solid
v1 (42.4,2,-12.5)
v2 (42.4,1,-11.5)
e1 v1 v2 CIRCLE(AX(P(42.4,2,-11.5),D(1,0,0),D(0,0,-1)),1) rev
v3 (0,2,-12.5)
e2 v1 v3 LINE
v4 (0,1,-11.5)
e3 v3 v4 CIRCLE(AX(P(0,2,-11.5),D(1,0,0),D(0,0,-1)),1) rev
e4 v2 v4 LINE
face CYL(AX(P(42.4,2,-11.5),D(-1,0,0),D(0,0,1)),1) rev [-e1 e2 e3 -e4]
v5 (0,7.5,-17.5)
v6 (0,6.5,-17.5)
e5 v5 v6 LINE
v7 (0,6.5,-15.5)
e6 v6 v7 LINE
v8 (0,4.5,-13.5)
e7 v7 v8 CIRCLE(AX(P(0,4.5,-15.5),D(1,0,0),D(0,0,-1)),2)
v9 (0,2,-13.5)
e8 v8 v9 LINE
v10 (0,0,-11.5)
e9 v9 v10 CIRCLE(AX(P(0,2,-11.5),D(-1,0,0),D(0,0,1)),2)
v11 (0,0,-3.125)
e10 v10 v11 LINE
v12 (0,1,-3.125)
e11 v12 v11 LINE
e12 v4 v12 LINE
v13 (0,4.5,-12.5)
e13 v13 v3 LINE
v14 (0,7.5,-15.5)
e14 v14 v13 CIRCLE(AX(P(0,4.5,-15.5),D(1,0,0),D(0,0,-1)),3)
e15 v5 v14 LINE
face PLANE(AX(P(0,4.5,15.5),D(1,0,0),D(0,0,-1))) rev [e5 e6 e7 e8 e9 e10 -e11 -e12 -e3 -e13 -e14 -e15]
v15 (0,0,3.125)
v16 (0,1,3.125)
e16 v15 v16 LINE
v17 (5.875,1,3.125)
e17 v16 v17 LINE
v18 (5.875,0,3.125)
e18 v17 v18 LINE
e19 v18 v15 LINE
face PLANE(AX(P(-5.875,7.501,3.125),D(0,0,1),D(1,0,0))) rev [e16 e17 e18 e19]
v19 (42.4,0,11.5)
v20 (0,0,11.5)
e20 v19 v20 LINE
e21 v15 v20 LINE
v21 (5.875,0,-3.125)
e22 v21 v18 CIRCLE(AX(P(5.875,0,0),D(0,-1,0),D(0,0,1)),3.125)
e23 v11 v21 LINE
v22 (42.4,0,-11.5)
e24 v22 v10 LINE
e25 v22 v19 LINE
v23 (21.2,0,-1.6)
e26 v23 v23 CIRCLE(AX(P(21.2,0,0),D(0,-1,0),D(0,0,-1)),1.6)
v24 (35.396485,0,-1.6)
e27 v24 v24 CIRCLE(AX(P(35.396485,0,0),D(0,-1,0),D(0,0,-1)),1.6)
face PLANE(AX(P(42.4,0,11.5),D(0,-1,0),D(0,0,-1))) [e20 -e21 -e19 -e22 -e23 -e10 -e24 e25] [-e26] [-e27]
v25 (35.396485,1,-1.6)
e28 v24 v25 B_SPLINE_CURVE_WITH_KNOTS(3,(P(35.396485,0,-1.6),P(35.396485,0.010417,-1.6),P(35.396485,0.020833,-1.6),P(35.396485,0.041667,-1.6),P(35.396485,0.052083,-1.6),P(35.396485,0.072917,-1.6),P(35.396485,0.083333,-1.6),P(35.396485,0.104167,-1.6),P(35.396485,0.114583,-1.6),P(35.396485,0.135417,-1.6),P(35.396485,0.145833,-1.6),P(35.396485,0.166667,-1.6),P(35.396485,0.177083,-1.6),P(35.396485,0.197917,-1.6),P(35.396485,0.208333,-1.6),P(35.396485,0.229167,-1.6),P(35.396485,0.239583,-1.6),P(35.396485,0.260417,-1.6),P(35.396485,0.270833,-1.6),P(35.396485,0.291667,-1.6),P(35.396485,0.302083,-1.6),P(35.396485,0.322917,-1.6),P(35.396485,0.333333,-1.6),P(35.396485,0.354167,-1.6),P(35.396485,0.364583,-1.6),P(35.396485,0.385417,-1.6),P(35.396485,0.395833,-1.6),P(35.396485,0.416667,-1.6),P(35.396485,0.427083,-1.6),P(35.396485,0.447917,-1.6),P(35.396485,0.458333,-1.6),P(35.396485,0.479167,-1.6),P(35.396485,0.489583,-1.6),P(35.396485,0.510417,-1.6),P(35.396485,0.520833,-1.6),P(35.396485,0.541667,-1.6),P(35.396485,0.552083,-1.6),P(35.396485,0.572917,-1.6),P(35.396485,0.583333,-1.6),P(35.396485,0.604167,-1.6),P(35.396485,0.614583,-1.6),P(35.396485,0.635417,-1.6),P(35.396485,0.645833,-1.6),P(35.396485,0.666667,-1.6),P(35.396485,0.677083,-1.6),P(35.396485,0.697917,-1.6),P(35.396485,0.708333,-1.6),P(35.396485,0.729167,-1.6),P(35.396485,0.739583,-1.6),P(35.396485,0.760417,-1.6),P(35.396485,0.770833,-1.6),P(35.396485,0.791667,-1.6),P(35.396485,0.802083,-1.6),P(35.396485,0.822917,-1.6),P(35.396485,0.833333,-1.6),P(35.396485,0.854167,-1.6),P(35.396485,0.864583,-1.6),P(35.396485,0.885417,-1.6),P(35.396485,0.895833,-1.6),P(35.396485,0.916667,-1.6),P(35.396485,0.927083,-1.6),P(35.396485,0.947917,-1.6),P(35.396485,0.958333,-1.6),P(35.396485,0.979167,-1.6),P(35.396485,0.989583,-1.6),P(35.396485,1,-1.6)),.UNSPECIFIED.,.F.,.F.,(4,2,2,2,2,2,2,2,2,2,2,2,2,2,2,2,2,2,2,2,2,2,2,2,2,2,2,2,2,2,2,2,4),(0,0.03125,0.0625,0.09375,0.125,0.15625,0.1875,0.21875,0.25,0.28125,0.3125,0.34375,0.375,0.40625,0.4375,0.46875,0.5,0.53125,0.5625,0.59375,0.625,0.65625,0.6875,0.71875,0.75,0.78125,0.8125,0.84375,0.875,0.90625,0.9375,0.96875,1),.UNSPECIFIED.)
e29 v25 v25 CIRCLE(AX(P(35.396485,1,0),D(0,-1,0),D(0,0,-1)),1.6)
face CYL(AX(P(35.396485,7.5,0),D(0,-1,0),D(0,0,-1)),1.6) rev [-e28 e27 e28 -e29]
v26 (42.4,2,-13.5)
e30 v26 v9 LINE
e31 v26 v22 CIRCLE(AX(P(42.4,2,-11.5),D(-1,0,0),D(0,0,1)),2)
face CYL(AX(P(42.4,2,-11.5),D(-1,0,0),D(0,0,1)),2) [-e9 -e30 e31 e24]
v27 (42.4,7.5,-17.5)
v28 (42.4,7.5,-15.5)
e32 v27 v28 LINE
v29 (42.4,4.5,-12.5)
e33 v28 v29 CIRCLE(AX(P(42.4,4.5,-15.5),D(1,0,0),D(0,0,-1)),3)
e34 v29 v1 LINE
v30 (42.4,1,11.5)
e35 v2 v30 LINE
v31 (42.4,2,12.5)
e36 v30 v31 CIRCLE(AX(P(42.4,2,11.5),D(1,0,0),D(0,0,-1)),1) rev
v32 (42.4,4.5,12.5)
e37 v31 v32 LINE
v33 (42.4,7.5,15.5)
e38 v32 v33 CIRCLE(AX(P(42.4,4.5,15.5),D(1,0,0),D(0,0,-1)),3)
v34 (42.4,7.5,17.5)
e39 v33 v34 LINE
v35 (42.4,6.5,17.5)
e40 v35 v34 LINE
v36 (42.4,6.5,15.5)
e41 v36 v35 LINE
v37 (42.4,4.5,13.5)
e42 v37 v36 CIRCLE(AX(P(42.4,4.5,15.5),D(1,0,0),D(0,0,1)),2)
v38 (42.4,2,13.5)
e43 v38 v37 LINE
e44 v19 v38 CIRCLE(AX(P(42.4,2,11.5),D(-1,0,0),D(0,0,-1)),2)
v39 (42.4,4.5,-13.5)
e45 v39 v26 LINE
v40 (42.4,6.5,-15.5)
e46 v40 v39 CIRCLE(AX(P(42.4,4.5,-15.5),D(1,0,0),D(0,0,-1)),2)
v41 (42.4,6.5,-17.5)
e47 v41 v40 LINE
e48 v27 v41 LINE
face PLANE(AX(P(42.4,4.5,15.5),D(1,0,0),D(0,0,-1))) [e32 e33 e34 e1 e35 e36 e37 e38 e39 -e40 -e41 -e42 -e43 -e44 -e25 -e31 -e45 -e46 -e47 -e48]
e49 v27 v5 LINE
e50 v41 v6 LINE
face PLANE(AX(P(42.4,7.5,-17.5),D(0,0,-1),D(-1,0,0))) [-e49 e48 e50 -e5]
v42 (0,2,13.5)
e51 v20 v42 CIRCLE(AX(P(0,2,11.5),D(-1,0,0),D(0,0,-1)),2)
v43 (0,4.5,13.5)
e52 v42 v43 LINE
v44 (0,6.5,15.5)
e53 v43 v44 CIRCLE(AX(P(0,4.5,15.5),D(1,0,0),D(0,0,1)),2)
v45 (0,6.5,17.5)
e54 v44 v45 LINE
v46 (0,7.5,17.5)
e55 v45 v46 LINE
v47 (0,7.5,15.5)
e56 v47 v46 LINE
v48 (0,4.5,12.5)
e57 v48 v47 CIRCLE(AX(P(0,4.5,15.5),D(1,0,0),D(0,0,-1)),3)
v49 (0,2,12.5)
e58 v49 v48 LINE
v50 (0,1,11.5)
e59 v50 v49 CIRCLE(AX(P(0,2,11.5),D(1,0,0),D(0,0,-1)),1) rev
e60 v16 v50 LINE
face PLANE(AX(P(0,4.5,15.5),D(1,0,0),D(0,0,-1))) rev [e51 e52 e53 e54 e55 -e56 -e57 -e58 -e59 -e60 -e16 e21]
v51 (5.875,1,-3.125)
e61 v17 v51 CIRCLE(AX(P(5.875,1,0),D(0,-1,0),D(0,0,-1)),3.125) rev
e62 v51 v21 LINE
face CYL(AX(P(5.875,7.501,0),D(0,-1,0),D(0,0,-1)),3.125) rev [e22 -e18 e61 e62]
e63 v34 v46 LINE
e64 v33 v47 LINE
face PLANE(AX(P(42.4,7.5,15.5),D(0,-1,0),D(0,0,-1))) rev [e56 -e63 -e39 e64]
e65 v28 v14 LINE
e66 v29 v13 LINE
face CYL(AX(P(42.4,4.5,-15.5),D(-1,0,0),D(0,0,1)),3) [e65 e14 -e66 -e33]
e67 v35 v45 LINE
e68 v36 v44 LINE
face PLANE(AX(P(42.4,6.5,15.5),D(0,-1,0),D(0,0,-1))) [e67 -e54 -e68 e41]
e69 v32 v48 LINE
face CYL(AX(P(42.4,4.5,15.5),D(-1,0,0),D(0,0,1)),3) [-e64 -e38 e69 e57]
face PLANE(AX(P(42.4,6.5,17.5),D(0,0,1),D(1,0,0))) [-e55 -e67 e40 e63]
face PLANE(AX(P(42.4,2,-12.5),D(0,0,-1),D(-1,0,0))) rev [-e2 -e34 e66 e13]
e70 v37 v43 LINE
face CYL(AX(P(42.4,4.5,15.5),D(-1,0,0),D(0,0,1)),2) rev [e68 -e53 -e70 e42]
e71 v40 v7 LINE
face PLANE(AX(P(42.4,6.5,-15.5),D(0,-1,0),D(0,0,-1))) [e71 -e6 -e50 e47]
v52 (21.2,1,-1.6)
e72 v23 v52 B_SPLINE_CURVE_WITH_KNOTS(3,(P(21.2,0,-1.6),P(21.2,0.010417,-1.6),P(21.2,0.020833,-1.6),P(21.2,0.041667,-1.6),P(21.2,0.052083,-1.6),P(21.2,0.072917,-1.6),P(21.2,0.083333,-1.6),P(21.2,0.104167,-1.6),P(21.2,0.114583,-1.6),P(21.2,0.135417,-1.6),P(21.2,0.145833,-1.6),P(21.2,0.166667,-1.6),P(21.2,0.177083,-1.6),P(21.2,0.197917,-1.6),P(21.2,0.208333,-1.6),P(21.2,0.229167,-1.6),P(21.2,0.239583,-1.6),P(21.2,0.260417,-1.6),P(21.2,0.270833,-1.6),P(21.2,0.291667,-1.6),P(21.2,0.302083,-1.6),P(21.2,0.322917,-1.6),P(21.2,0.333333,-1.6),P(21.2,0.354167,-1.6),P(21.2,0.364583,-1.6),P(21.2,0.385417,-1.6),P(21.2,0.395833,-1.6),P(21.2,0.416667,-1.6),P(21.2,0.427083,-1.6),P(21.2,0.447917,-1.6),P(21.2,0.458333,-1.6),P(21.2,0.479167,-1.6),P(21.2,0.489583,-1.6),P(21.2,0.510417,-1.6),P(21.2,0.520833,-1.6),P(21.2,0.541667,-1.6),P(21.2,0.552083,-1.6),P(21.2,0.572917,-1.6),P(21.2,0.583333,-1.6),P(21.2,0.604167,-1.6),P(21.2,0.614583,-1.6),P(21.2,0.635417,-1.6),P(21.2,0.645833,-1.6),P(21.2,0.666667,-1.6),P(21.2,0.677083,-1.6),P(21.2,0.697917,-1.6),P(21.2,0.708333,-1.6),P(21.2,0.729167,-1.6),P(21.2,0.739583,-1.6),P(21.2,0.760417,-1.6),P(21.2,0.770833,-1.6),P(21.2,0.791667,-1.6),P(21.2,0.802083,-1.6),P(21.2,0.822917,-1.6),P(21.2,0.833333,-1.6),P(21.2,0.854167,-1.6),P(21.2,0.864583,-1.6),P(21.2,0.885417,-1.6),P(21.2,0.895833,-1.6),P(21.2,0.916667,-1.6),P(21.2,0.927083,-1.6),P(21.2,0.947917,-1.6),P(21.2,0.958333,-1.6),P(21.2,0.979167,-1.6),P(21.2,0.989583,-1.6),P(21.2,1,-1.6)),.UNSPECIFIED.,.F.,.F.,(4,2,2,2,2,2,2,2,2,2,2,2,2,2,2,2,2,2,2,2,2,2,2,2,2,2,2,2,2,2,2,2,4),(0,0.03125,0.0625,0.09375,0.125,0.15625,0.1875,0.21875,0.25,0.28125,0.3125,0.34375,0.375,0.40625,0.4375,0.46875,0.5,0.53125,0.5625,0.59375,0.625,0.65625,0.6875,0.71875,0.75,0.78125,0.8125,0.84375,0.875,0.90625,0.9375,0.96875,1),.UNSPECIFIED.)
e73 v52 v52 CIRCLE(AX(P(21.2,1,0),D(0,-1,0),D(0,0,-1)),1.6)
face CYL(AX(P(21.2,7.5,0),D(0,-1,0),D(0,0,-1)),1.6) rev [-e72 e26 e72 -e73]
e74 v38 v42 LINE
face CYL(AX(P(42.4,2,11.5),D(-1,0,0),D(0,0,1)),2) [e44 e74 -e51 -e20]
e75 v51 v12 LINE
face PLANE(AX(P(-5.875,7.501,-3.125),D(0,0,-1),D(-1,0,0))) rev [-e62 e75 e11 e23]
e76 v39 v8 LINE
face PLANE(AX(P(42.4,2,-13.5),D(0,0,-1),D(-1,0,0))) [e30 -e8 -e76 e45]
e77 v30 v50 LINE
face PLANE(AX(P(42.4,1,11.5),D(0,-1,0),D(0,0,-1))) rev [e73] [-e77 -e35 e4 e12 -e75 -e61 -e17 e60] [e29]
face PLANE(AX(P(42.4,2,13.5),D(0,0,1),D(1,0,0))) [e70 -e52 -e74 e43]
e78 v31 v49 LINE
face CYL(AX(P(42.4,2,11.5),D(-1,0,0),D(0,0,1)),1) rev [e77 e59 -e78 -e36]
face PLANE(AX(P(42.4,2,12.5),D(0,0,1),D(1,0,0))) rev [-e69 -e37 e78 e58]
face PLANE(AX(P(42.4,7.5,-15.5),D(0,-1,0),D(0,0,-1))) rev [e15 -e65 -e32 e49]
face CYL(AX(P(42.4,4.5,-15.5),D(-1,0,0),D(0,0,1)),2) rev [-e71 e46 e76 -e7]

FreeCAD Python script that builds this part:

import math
import FreeCAD as App
import Part
import Sketcher
Q = App.Units.Quantity

doc = App.newDocument("Part")
body = doc.addObject("PartDesign::Body", "Body")

# Sketch on YZ plane
sketch1 = body.newObject("Sketcher::SketchObject", "Sketch")
sketch1.AttachmentSupport = (doc.getObject("YZ_Plane"), [""])
sketch1.MapMode = "FlatFace"
sketch1.addGeometry([
    Part.LineSegment(App.Vector(6.5, 17.5, 0), App.Vector(6.5, 15.5, 0)),  # 0
    Part.ArcOfCircle(Part.Circle(App.Vector(4.5, 15.5, 0), App.Vector(0, 0, 1), 2), math.radians(-90), math.radians(0)),  # 1
    Part.LineSegment(App.Vector(4.5, 13.5, 0), App.Vector(2, 13.5, 0)),  # 2
    Part.ArcOfCircle(Part.Circle(App.Vector(2, 11.5, 0), App.Vector(0, 0, 1), 2), math.radians(90), math.radians(180)),  # 3
    Part.LineSegment(App.Vector(0, 11.5, 0), App.Vector(0, -11.5, 0)),  # 4
    Part.ArcOfCircle(Part.Circle(App.Vector(2, -11.5, 0), App.Vector(0, 0, 1), 2), math.radians(-180), math.radians(-90)),  # 5
    Part.LineSegment(App.Vector(2, -13.5, 0), App.Vector(4.5, -13.5, 0)),  # 6
    Part.ArcOfCircle(Part.Circle(App.Vector(4.5, -15.5, 0), App.Vector(0, 0, 1), 2), math.radians(0), math.radians(90)),  # 7
    Part.LineSegment(App.Vector(6.5, -15.5, 0), App.Vector(6.5, -17.5, 0)),  # 8
    Part.LineSegment(App.Vector(6.5, -17.5, 0), App.Vector(7.5, -17.5, 0)),  # 9
    Part.LineSegment(App.Vector(7.5, -17.5, 0), App.Vector(7.5, -15.5, 0)),  # 10
    Part.ArcOfCircle(Part.Circle(App.Vector(4.5, -15.5, 0), App.Vector(0, 0, 1), 3), math.radians(0), math.radians(90)),  # 11
    Part.LineSegment(App.Vector(4.5, -12.5, 0), App.Vector(2, -12.5, 0)),  # 12
    Part.ArcOfCircle(Part.Circle(App.Vector(2, -11.5, 0), App.Vector(0, 0, 1), 1), math.radians(-180), math.radians(-90)),  # 13
    Part.LineSegment(App.Vector(1, -11.5, 0), App.Vector(1, 11.5, 0)),  # 14
    Part.ArcOfCircle(Part.Circle(App.Vector(2, 11.5, 0), App.Vector(0, 0, 1), 1), math.radians(90), math.radians(180)),  # 15
    Part.LineSegment(App.Vector(2, 12.5, 0), App.Vector(4.5, 12.5, 0)),  # 16
    Part.ArcOfCircle(Part.Circle(App.Vector(4.5, 15.5, 0), App.Vector(0, 0, 1), 3), math.radians(-90), math.radians(0)),  # 17
    Part.LineSegment(App.Vector(7.5, 15.5, 0), App.Vector(7.5, 17.5, 0)),  # 18
    Part.LineSegment(App.Vector(7.5, 17.5, 0), App.Vector(6.5, 17.5, 0)),  # 19
], False)
sketch1.addConstraint([
    Sketcher.Constraint("Tangent", 0, 2, 1, 2),
    Sketcher.Constraint("Tangent", 1, 1, 2, 1),
    Sketcher.Constraint("Tangent", 2, 2, 3, 1),
    Sketcher.Constraint("Tangent", 3, 2, 4, 1),
    Sketcher.Constraint("Tangent", 4, 2, 5, 1),
    Sketcher.Constraint("Tangent", 5, 2, 6, 1),
    Sketcher.Constraint("Tangent", 6, 2, 7, 2),
    Sketcher.Constraint("Tangent", 7, 1, 8, 1),
    Sketcher.Constraint("Coincident", 8, 2, 9, 1),
    Sketcher.Constraint("Coincident", 9, 2, 10, 1),
    Sketcher.Constraint("Tangent", 10, 2, 11, 1),
    Sketcher.Constraint("Tangent", 11, 2, 12, 1),
    Sketcher.Constraint("Tangent", 12, 2, 13, 2),
    Sketcher.Constraint("Tangent", 13, 1, 14, 1),
    Sketcher.Constraint("Tangent", 14, 2, 15, 2),
    Sketcher.Constraint("Tangent", 15, 1, 16, 1),
    Sketcher.Constraint("Tangent", 16, 2, 17, 1),
    Sketcher.Constraint("Tangent", 17, 2, 18, 1),
    Sketcher.Constraint("Coincident", 18, 2, 19, 1),
    Sketcher.Constraint("Coincident", 19, 2, 0, 1),
    Sketcher.Constraint("Vertical", 0),
    Sketcher.Constraint("Horizontal", 2),
    Sketcher.Constraint("Vertical", 4),
    Sketcher.Constraint("Horizontal", 6),
    Sketcher.Constraint("Vertical", 8),
    Sketcher.Constraint("Horizontal", 9),
    Sketcher.Constraint("Vertical", 10),
    Sketcher.Constraint("Horizontal", 12),
    Sketcher.Constraint("Vertical", 14),
    Sketcher.Constraint("Horizontal", 16),
    Sketcher.Constraint("Vertical", 18),
    Sketcher.Constraint("Horizontal", 19),
    Sketcher.Constraint("Coincident", 11, 3, 7, 3),
    Sketcher.Constraint("Coincident", 13, 3, 5, 3),
    Sketcher.Constraint("Coincident", 15, 3, 3, 3),
    Sketcher.Constraint("Coincident", 17, 3, 1, 3),
    Sketcher.Constraint("Equal", 1, 3),
    Sketcher.Constraint("Equal", 3, 5),
    Sketcher.Constraint("Equal", 5, 7),
    Sketcher.Constraint("Symmetric", 3, 2, 4, 2, -1, 1),
    Sketcher.Constraint("Symmetric", 9, 2, 18, 2, -1),
    Sketcher.Constraint("Radius", 1, Q("2 mm")),
    Sketcher.Constraint("Radius", 11, Q("3 mm")),
    Sketcher.Constraint("DistanceY", 0, 2, 0, 1, Q("2 mm")),
    Sketcher.Constraint("DistanceY", 4, 2, 4, 1, Q("23 mm")),
    Sketcher.Constraint("DistanceX", 2, 2, 2, 1, Q("2.5 mm")),
])
pad1 = body.newObject("PartDesign::Pad", "Pad")
pad1.Profile = sketch1
pad1.Length = 42.4

# Sketch on XZ plane
sketch2 = body.newObject("Sketcher::SketchObject", "Sketch001")
sketch2.AttachmentSupport = (doc.getObject("XZ_Plane"), [""])
sketch2.MapMode = "FlatFace"
sketch2.addGeometry([
    Part.LineSegment(App.Vector(5.9, 3.1, 0), App.Vector(-5.9, 3.1, 0)),
    Part.ArcOfCircle(Part.Circle(App.Vector(-5.9, 0, 0), App.Vector(0, 0, 1), 3.1), math.radians(90), math.radians(270)),
    Part.LineSegment(App.Vector(-5.9, -3.1, 0), App.Vector(5.9, -3.1, 0)),
    Part.ArcOfCircle(Part.Circle(App.Vector(5.9, 0, 0), App.Vector(0, 0, 1), 3.1), math.radians(-90), math.radians(90)),
], False)
sketch2.addConstraint([
    Sketcher.Constraint("Tangent", 0, 2, 1, 1),
    Sketcher.Constraint("Tangent", 1, 2, 2, 1),
    Sketcher.Constraint("Tangent", 2, 2, 3, 1),
    Sketcher.Constraint("Tangent", 3, 2, 0, 1),
    Sketcher.Constraint("Horizontal", 0),
    Sketcher.Constraint("Horizontal", 2),
    Sketcher.Constraint("Symmetric", 1, 3, 3, 3, -1, 1),
    Sketcher.Constraint("Radius", 1, Q("3.125 mm")),
    Sketcher.Constraint("DistanceX", 0, 2, 0, 1, Q("11.75 mm")),
])
pocket1 = body.newObject("PartDesign::Pocket", "Pocket")
pocket1.Profile = sketch2
pocket1.Type = "UpToFirst"

# Sketch on XZ plane
sketch3 = body.newObject("Sketcher::SketchObject", "Sketch002")
sketch3.AttachmentSupport = (doc.getObject("XZ_Plane"), [""])
sketch3.MapMode = "FlatFace"
sketch3.addGeometry([
    Part.Circle(App.Vector(35.4, 0, 0), App.Vector(0, 0, 1), 1.6),
    Part.Circle(App.Vector(21.2, 0, 0), App.Vector(0, 0, 1), 1.6),
], False)
sketch3.addConstraint([
    Sketcher.Constraint("Equal", 0, 1),
    Sketcher.Constraint("PointOnObject", 0, 3, -1),
    Sketcher.Constraint("PointOnObject", 1, 3, -1),
    Sketcher.Constraint("Diameter", 0, Q("3.2 mm")),
    Sketcher.Constraint("DistanceX", -1, 1, 1, 3, Q("21.2 mm")),
    Sketcher.Constraint("DistanceX", -1, 1, 0, 3, Q("35.396485 mm")),
])
pocket2 = body.newObject("PartDesign::Pocket", "Pocket001")
pocket2.Profile = sketch3
pocket2.Type = "ThroughAll"

doc.recompute()
